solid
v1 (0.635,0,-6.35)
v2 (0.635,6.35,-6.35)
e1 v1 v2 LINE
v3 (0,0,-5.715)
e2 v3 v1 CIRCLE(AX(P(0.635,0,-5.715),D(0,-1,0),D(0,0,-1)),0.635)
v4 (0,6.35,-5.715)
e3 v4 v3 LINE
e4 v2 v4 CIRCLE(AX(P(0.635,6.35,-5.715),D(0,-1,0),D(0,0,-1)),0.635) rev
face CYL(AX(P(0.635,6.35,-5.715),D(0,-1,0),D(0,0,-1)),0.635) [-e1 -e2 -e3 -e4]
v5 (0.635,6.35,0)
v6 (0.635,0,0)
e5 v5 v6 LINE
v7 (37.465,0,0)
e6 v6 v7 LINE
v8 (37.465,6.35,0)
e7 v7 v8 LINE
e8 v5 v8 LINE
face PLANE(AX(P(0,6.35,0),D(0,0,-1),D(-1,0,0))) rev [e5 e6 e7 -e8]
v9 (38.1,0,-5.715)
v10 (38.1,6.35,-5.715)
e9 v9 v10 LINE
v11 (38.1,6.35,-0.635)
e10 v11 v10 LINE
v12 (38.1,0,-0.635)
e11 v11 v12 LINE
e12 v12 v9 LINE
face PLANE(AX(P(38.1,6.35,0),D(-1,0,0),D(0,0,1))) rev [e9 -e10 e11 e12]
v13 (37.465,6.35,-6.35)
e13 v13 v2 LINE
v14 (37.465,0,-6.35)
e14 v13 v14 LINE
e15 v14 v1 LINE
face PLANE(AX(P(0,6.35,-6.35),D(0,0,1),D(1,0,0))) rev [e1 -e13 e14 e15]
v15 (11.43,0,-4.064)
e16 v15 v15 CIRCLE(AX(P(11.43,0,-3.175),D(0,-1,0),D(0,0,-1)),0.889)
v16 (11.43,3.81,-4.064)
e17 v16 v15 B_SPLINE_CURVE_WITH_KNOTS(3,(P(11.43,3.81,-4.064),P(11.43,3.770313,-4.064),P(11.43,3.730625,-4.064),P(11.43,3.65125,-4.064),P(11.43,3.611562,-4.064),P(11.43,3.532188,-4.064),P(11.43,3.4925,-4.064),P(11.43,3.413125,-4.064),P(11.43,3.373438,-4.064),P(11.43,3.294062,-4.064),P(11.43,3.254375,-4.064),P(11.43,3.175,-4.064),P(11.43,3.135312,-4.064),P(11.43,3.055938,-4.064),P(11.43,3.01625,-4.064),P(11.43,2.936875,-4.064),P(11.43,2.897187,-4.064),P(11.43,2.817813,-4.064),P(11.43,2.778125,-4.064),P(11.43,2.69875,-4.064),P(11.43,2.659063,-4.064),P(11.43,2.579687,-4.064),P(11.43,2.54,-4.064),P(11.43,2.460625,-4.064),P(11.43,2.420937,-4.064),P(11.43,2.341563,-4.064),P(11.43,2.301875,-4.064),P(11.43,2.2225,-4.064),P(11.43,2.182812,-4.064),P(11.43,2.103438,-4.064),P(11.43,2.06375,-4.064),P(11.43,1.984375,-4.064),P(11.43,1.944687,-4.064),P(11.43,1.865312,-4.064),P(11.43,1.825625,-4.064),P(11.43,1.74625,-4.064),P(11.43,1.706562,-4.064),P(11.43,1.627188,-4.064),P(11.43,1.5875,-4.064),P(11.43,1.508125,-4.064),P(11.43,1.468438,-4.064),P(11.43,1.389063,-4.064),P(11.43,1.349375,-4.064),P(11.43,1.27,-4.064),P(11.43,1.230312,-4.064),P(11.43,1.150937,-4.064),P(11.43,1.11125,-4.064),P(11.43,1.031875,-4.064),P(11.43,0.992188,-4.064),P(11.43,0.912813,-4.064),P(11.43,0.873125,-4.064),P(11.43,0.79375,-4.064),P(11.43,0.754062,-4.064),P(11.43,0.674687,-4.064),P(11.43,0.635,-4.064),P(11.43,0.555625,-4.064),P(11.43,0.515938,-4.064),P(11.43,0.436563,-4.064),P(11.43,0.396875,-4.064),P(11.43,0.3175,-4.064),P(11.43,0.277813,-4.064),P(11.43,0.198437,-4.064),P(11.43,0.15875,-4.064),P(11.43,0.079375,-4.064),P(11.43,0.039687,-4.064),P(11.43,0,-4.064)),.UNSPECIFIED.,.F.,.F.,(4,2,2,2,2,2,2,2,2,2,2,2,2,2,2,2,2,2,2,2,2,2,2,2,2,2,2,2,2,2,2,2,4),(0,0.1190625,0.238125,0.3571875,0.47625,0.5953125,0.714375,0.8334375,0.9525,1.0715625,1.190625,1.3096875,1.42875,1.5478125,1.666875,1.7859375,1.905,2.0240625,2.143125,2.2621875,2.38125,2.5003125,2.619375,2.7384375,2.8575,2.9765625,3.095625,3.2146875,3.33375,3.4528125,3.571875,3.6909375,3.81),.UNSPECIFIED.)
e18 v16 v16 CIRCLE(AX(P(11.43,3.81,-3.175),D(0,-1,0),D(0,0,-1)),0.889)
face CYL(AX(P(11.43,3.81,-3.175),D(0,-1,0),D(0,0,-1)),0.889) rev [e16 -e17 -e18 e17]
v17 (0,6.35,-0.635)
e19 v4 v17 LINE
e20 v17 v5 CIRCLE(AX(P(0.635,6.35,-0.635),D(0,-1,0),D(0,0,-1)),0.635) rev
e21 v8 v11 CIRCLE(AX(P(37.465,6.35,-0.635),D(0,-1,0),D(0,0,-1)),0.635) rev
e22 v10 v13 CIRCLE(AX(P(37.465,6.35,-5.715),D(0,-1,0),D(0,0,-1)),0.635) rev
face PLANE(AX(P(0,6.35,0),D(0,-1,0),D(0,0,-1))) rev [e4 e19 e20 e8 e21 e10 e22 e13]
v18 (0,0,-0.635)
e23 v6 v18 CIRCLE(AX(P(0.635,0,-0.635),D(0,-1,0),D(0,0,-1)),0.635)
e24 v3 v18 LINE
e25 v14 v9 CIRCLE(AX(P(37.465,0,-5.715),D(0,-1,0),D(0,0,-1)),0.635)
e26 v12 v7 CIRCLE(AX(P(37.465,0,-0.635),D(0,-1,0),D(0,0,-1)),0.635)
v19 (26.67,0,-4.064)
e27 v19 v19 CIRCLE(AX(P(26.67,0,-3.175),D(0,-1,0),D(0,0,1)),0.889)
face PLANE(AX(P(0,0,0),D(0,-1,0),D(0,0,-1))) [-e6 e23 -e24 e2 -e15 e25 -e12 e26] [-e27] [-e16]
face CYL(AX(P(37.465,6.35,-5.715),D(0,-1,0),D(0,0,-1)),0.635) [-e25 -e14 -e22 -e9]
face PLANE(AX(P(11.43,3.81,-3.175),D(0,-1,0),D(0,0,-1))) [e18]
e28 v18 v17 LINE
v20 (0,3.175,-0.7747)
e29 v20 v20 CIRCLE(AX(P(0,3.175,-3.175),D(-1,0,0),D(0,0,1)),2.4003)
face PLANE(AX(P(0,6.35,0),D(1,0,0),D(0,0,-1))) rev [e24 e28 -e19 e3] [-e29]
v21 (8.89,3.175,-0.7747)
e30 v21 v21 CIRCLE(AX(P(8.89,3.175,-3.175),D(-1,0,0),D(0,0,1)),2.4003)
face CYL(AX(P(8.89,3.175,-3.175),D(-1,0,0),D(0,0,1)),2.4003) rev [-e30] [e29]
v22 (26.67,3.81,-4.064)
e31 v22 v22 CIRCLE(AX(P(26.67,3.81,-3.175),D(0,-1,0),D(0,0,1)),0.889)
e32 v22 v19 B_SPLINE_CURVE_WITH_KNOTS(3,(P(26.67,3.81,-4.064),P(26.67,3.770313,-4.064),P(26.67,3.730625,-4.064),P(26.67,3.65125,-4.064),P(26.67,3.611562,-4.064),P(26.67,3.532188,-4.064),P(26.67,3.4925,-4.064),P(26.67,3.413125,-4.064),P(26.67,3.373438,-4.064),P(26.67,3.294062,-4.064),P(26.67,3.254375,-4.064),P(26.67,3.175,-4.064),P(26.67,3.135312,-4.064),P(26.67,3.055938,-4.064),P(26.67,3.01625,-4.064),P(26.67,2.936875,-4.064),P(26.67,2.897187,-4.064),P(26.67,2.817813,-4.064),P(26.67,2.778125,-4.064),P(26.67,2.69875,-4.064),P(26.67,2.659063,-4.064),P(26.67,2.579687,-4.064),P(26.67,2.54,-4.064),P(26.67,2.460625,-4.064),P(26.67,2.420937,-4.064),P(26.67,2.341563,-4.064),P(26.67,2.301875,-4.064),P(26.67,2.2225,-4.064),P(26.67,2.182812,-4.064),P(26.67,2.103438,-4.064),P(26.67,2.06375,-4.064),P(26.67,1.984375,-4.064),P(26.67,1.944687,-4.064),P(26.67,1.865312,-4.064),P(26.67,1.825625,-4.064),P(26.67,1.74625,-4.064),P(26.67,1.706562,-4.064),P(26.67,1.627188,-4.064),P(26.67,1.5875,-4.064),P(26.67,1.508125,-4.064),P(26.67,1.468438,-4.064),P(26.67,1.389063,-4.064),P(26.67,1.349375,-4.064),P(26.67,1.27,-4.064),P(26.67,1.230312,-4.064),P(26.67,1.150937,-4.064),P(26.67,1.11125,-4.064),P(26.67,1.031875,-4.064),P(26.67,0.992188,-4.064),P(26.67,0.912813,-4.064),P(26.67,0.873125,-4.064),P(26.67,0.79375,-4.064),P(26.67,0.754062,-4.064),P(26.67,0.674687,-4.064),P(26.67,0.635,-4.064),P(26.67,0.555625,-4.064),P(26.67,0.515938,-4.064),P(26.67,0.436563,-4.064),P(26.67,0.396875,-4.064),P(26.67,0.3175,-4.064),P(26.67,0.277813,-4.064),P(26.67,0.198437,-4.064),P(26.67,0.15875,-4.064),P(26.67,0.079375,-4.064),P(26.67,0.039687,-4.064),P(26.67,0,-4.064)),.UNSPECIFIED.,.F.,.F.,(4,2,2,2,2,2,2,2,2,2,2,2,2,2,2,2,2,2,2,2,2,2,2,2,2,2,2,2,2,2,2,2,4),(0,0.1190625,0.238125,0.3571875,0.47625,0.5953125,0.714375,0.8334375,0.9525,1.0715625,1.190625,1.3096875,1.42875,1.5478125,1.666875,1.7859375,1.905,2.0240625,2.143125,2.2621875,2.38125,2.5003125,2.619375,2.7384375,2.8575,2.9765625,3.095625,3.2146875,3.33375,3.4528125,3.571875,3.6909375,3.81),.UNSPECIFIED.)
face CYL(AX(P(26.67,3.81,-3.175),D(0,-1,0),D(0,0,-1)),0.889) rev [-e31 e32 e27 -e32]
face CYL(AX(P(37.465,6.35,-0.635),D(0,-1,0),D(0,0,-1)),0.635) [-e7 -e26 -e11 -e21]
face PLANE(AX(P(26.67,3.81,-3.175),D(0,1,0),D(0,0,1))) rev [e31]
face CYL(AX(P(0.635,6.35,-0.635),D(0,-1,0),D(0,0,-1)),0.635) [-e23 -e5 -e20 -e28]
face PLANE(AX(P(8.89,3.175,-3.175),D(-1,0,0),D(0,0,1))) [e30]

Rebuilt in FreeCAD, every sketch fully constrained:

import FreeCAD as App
import Part
import Sketcher
Q = App.Units.Quantity


def edges_at(feature, points):
    """Names of the edges that pass closest to the given points."""
    edges = feature.Shape.Edges
    near = lambda p: min(range(len(edges)), key=lambda i: edges[i].distToShape(Part.Vertex(*p))[0])
    return sorted({f"Edge{near(p) + 1}" for p in points})

doc = App.newDocument("Part")
body = doc.addObject("PartDesign::Body", "Body")

# Sketch on XZ plane
sketch1 = doc.addObject("Sketcher::SketchObject", "Sketch")
body.addObject(sketch1)
sketch1.AttachmentSupport = (doc.XZ_Plane, [""])
sketch1.MapMode = "FlatFace"
sketch1.addGeometry([
    Part.LineSegment(App.Vector(0, -6, 0), App.Vector(0, 0, 0)),
    Part.LineSegment(App.Vector(0, 0, 0), App.Vector(38, 0, 0)),
    Part.LineSegment(App.Vector(38, 0, 0), App.Vector(38, -6, 0)),
    Part.LineSegment(App.Vector(38, -6, 0), App.Vector(0, -6, 0)),
], False)
sketch1.addConstraint([
    Sketcher.Constraint("Coincident", 0, 2, 1, 1),
    Sketcher.Constraint("Coincident", 1, 2, 2, 1),
    Sketcher.Constraint("Coincident", 2, 2, 3, 1),
    Sketcher.Constraint("Coincident", 3, 2, 0, 1),
    Sketcher.Constraint("Vertical", 0),
    Sketcher.Constraint("Horizontal", 1),
    Sketcher.Constraint("Vertical", 2),
    Sketcher.Constraint("Horizontal", 3),
    Sketcher.Constraint("Coincident", 0, 2, -1, 1),
    Sketcher.Constraint("DistanceX", 1, 1, 1, 2, Q("1.5 in")),
    Sketcher.Constraint("DistanceY", 0, 1, 0, 2, Q("0.25 in")),
])
pad1 = doc.addObject("PartDesign::Pad", "Pad")
body.addObject(pad1)
pad1.Profile = sketch1
pad1.Length = Q("0.25 in")
pad1.Reversed = True

# Sketch on YZ plane
sketch2 = doc.addObject("Sketcher::SketchObject", "Sketch001")
body.addObject(sketch2)
sketch2.AttachmentSupport = (doc.YZ_Plane, [""])
sketch2.MapMode = "FlatFace"
sketch2.addGeometry(Part.Circle(App.Vector(3.2, -3.2, 0), App.Vector(0, 0, 1), 2.4), False)
sketch2.addConstraint([
    Sketcher.Constraint("Diameter", 0, Q("0.189 in")),
    Sketcher.Constraint("DistanceX", -1, 1, 0, 3, Q("0.125 in")),
    Sketcher.Constraint("DistanceY", 0, 3, -1, 1, Q("0.125 in")),
])
pocket1 = doc.addObject("PartDesign::Pocket", "Pocket")
body.addObject(pocket1)
pocket1.Profile = sketch2
pocket1.Length = Q("0.35 in")
pocket1.Reversed = True
doc.recompute()

fillet = doc.addObject("PartDesign::Fillet", "Fillet")
body.addObject(fillet)
fillet.Base = (pocket1, edges_at(pocket1, [
    (0, 3.175, -6.35),
    (38.1, 3.175, -6.35),
    (38.1, 3.175, 0),
    (0, 3.175, 0),
]))
fillet.Radius = Q("0.025 in")

# Sketch on XZ plane
sketch3 = doc.addObject("Sketcher::SketchObject", "Sketch002")
body.addObject(sketch3)
sketch3.AttachmentSupport = (doc.XZ_Plane, [""])
sketch3.MapMode = "FlatFace"
sketch3.addGeometry([
    Part.Circle(App.Vector(11.4, -3.2, 0), App.Vector(0, 0, 1), 0.9),
    Part.Circle(App.Vector(26.7, -3.2, 0), App.Vector(0, 0, 1), 0.9),
], False)
sketch3.addConstraint([
    Sketcher.Constraint("Equal", 0, 1),
    Sketcher.Constraint("Horizontal", 0, 3, 1, 3),
    Sketcher.Constraint("Diameter", 0, Q("0.07 in")),
    Sketcher.Constraint("DistanceX", 0, 3, 1, 3, Q("0.6 in")),
    Sketcher.Constraint("DistanceX", -1, 1, 0, 3, Q("0.45 in")),
    Sketcher.Constraint("DistanceY", 0, 3, -1, 1, Q("0.125 in")),
])
pocket2 = doc.addObject("PartDesign::Pocket", "Pocket001")
body.addObject(pocket2)
pocket2.Profile = sketch3
pocket2.Length = Q("0.15 in")

doc.recompute()
